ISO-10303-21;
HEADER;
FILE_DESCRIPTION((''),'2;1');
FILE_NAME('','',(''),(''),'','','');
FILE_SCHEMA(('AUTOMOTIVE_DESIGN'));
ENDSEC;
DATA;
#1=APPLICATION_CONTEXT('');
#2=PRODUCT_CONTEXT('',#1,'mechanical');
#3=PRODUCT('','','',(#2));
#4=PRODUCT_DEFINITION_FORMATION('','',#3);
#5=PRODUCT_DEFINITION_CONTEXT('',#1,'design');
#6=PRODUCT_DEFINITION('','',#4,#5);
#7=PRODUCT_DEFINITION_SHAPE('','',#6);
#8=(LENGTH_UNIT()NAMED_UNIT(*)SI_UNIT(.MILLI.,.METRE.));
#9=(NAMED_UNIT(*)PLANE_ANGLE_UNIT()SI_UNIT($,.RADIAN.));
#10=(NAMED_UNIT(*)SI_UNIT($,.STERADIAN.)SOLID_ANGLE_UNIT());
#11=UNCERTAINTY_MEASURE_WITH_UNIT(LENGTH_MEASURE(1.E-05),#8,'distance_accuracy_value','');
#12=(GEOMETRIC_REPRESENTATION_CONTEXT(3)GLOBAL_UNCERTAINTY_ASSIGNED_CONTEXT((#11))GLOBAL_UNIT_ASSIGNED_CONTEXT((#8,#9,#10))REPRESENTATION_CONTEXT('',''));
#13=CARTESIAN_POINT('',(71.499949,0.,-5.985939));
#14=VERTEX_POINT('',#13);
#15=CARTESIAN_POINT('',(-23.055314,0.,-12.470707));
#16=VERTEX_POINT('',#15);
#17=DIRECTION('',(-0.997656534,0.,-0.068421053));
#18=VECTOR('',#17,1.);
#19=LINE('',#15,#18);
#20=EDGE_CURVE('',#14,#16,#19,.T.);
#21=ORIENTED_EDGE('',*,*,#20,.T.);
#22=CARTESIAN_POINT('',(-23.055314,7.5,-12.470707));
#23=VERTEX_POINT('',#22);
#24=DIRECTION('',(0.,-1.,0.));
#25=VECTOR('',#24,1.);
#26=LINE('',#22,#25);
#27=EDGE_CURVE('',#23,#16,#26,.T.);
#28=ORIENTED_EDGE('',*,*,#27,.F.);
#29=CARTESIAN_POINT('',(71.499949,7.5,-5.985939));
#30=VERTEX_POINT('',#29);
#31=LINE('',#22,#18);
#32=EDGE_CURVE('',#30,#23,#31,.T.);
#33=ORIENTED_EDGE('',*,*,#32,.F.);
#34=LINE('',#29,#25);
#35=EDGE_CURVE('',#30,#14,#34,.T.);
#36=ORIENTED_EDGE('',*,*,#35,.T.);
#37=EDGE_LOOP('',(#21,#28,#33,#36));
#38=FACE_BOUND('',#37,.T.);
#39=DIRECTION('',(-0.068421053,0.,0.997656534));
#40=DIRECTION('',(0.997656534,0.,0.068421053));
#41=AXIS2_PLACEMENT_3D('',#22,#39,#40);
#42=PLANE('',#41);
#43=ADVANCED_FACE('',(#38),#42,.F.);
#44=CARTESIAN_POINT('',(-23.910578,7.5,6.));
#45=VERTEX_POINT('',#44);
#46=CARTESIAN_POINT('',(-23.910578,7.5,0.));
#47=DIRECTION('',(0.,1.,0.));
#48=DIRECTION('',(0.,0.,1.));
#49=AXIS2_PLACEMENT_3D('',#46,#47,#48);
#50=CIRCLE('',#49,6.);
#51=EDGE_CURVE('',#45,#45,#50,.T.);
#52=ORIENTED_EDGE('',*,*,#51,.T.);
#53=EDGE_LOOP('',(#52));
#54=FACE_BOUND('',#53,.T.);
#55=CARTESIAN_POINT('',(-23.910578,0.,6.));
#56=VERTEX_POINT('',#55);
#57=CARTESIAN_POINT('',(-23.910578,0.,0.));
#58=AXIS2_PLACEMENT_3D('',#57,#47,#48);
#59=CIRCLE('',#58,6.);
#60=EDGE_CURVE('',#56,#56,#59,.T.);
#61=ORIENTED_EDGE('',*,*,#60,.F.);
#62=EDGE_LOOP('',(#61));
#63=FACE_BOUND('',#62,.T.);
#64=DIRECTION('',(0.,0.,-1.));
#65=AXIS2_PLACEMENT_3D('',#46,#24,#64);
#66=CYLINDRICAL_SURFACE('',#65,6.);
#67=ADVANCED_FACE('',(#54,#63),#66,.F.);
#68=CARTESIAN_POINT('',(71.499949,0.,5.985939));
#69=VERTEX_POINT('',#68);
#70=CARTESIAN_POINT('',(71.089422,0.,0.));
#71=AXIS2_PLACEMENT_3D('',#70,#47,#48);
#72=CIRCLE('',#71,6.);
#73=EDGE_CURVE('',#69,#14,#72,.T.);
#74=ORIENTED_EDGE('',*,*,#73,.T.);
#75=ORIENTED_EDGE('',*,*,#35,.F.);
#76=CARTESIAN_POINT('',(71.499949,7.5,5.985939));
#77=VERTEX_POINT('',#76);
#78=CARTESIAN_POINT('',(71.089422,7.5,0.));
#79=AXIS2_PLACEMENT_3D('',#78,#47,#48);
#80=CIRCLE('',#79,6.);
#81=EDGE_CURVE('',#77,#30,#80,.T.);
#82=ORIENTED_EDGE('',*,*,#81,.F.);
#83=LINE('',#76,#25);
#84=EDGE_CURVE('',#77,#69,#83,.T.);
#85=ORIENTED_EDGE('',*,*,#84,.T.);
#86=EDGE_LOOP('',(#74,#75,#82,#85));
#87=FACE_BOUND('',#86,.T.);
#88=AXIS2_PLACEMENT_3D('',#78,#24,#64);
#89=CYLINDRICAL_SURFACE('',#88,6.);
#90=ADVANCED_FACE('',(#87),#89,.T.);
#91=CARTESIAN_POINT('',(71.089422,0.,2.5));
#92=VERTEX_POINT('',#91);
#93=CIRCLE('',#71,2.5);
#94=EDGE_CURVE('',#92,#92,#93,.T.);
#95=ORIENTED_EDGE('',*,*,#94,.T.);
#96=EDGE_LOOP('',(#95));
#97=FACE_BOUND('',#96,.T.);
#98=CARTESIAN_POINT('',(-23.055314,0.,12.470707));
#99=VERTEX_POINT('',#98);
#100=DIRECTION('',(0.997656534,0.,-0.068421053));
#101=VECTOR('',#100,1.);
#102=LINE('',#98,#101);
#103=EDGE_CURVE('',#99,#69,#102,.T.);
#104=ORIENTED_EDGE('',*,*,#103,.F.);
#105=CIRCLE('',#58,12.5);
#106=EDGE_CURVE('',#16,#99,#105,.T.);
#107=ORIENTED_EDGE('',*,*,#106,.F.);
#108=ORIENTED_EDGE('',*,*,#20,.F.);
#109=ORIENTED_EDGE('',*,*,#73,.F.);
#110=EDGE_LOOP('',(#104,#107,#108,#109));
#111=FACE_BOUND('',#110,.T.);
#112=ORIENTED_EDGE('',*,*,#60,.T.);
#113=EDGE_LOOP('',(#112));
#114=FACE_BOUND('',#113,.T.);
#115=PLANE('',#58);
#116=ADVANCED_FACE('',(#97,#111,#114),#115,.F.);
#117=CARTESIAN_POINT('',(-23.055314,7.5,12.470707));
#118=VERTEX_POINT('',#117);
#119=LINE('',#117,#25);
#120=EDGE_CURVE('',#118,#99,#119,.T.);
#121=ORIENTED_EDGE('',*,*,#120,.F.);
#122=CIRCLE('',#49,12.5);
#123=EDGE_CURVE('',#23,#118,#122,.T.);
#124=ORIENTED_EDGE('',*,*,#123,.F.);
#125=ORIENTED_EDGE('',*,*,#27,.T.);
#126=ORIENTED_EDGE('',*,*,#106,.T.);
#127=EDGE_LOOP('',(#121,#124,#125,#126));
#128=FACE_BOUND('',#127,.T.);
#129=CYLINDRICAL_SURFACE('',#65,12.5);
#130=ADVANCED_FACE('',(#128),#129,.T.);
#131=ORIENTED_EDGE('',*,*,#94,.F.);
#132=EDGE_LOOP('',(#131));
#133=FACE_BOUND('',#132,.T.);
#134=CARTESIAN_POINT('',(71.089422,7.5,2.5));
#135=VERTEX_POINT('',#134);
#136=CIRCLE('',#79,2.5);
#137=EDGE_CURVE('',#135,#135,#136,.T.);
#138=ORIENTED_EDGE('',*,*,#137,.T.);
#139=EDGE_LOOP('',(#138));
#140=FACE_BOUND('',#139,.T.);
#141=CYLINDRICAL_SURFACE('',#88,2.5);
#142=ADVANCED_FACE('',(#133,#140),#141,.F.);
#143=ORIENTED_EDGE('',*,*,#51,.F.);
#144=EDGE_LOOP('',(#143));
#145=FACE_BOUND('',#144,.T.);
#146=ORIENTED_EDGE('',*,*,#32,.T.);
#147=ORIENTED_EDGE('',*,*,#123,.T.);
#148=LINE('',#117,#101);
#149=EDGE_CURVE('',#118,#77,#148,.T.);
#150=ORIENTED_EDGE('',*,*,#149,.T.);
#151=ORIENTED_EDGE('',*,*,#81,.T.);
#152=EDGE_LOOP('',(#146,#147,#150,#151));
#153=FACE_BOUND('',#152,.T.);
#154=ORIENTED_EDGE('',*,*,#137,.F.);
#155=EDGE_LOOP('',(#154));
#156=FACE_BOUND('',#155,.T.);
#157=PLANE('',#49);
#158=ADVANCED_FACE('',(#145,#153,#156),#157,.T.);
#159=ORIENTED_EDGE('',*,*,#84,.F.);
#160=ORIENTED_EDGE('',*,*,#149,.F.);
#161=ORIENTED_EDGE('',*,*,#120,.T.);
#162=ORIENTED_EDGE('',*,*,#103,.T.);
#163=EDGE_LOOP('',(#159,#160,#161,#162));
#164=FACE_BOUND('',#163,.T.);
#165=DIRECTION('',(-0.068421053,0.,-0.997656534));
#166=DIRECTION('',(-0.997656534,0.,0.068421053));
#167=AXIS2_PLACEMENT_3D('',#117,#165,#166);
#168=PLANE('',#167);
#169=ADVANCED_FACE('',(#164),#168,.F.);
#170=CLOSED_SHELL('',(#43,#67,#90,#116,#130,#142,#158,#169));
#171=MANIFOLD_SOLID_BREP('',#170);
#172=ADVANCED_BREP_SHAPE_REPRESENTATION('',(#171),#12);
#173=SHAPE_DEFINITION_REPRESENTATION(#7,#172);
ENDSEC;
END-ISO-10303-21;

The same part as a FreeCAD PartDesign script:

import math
import FreeCAD as App
import Part
import Sketcher

V = App.Vector
Q = App.Units.Quantity

doc = App.newDocument("Part")
body = doc.addObject("PartDesign::Body", "Body")

# Sketch on XZ plane
sketch1 = body.newObject("Sketcher::SketchObject", "Sketch")
sketch1.AttachmentSupport = (doc.getObject("XZ_Plane"), [""])
sketch1.MapMode = "FlatFace"
sketch1.addGeometry(Part.LineSegment(V(71.5, -6, 0), V(-23.1, -12.5, 0)), False)
sketch1.addGeometry(Part.ArcOfCircle(Part.Circle(V(-23.9, 0, 0), V(0, 0, 1), 12.5), math.radians(86), math.radians(274)), False)
sketch1.addGeometry(Part.LineSegment(V(-23.1, 12.5, 0), V(71.5, 6, 0)), False)
sketch1.addGeometry(Part.ArcOfCircle(Part.Circle(V(71.1, 0, 0), V(0, 0, 1), 6), math.radians(-86), math.radians(86)), False)
sketch1.addGeometry(Part.Circle(V(71.1, 0, 0), V(0, 0, 1), 2.5), False)
sketch1.addGeometry(Part.Circle(V(-23.9, 0, 0), V(0, 0, 1), 6), False)
sketch1.addConstraint(Sketcher.Constraint("Tangent", 0, 2, 1, 2))
sketch1.addConstraint(Sketcher.Constraint("Tangent", 1, 1, 2, 1))
sketch1.addConstraint(Sketcher.Constraint("Tangent", 2, 2, 3, 2))
sketch1.addConstraint(Sketcher.Constraint("Tangent", 3, 1, 0, 1))
sketch1.addConstraint(Sketcher.Constraint("Coincident", 4, 3, 3, 3))
sketch1.addConstraint(Sketcher.Constraint("Coincident", 5, 3, 1, 3))
sketch1.addConstraint(Sketcher.Constraint("Equal", 3, 5))
sketch1.addConstraint(Sketcher.Constraint("Symmetric", 0, 2, 1, 1, -1))
sketch1.addConstraint(Sketcher.Constraint("Diameter", 4, Q("5 mm")))
sketch1.addConstraint(Sketcher.Constraint("Diameter", 5, Q("12 mm")))
sketch1.addConstraint(Sketcher.Constraint("Radius", 1, Q("12.5 mm")))
sketch1.addConstraint(Sketcher.Constraint("DistanceX", 1, 3, 3, 3, Q("95 mm")))
sketch1.addConstraint(Sketcher.Constraint("DistanceX", -1, 1, 2, 2, Q("71.499949 mm")))
pad1 = body.newObject("PartDesign::Pad", "Pad")
pad1.Profile = sketch1
pad1.Length = 7.5
pad1.Reversed = True

doc.recompute()
